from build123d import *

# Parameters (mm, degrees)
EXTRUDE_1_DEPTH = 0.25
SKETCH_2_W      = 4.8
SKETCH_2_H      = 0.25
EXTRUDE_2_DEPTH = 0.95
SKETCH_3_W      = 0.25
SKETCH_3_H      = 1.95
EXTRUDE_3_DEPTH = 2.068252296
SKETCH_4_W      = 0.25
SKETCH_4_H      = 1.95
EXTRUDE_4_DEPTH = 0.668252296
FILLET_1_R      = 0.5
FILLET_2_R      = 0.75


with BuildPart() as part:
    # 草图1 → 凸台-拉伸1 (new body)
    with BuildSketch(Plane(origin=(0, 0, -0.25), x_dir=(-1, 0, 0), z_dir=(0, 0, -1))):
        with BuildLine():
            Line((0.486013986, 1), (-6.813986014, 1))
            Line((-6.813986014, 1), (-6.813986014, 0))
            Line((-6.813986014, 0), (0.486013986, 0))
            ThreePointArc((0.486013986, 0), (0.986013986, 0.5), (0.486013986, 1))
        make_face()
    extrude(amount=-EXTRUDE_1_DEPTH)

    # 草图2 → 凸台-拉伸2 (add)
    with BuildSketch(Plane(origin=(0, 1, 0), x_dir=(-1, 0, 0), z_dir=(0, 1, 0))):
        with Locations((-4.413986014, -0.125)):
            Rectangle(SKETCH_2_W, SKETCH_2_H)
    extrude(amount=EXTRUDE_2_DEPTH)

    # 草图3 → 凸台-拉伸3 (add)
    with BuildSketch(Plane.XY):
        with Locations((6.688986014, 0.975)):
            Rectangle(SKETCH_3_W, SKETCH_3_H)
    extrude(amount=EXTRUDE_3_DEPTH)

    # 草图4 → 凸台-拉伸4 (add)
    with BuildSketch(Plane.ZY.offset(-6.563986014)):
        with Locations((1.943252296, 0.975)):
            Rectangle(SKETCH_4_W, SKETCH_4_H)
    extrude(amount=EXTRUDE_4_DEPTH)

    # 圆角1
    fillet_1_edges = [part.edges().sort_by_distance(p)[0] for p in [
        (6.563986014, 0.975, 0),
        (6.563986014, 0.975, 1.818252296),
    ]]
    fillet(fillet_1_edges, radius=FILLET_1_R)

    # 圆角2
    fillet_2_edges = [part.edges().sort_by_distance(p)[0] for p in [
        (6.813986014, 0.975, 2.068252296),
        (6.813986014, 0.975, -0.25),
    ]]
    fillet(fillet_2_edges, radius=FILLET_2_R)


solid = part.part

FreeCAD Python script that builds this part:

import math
import FreeCAD as App
import Part
import Sketcher


def edges_at(feature, points):
    """Names of the edges that pass closest to the given points."""
    edges = feature.Shape.Edges
    near = lambda p: min(range(len(edges)), key=lambda i: edges[i].distToShape(Part.Vertex(*p))[0])
    return sorted({f"Edge{near(p) + 1}" for p in points})

doc = App.newDocument("Part")
body = doc.addObject("PartDesign::Body", "Body")

# Sketch on XY plane
sketch1 = doc.addObject("Sketcher::SketchObject", "Sketch")
body.addObject(sketch1)
sketch1.AttachmentSupport = (doc.XY_Plane, [""])
sketch1.MapMode = "FlatFace"
sketch1.AttachmentOffset = App.Placement(App.Vector(0, 0, -0.25), App.Rotation())
sketch1.addGeometry(Part.LineSegment(App.Vector(-0.5, 1, 0), App.Vector(6.8, 1, 0)), False)
sketch1.addGeometry(Part.LineSegment(App.Vector(6.8, 1, 0), App.Vector(6.8, 0, 0)), False)
sketch1.addGeometry(Part.LineSegment(App.Vector(6.8, 0, 0), App.Vector(-0.5, 0, 0)), False)
sketch1.addGeometry(Part.ArcOfCircle(Part.Circle(App.Vector(-0.5, 0.5, 0), App.Vector(0, 0, 1), 0.5), math.radians(90), math.radians(270)), False)
sketch1.addConstraint(Sketcher.Constraint("Coincident", 0, 2, 1, 1))
sketch1.addConstraint(Sketcher.Constraint("Coincident", 1, 2, 2, 1))
sketch1.addConstraint(Sketcher.Constraint("Tangent", 2, 2, 3, 2))
sketch1.addConstraint(Sketcher.Constraint("Tangent", 3, 1, 0, 1))
sketch1.addConstraint(Sketcher.Constraint("Horizontal", 0))
sketch1.addConstraint(Sketcher.Constraint("Vertical", 1))
sketch1.addConstraint(Sketcher.Constraint("Horizontal", 2))
sketch1.addConstraint(Sketcher.Constraint("PointOnObject", 1, 2, -1))
sketch1.addConstraint(Sketcher.Constraint("Radius", 3, 0.5))
sketch1.addConstraint(Sketcher.Constraint("DistanceX", 0, 1, 0, 2, 7.3))
sketch1.addConstraint(Sketcher.Constraint("DistanceX", 3, 3, -1, 1, 0.486014))
pad1 = doc.addObject("PartDesign::Pad", "Pad")
body.addObject(pad1)
pad1.Profile = sketch1
pad1.Length = 0.25

# Sketch on XZ plane
sketch2 = doc.addObject("Sketcher::SketchObject", "Sketch001")
body.addObject(sketch2)
sketch2.AttachmentSupport = (doc.XZ_Plane, [""])
sketch2.MapMode = "FlatFace"
sketch2.AttachmentOffset = App.Placement(App.Vector(0, 0, -1), App.Rotation())
sketch2.addGeometry(Part.LineSegment(App.Vector(6.81, 0, 0), App.Vector(6.81, -0.25, 0)), False)
sketch2.addGeometry(Part.LineSegment(App.Vector(6.81, -0.25, 0), App.Vector(2.01, -0.25, 0)), False)
sketch2.addGeometry(Part.LineSegment(App.Vector(2.01, -0.25, 0), App.Vector(2.01, 0, 0)), False)
sketch2.addGeometry(Part.LineSegment(App.Vector(2.01, 0, 0), App.Vector(6.81, 0, 0)), False)
sketch2.addConstraint(Sketcher.Constraint("Coincident", 0, 2, 1, 1))
sketch2.addConstraint(Sketcher.Constraint("Coincident", 1, 2, 2, 1))
sketch2.addConstraint(Sketcher.Constraint("Coincident", 2, 2, 3, 1))
sketch2.addConstraint(Sketcher.Constraint("Coincident", 3, 2, 0, 1))
sketch2.addConstraint(Sketcher.Constraint("Vertical", 0))
sketch2.addConstraint(Sketcher.Constraint("Horizontal", 1))
sketch2.addConstraint(Sketcher.Constraint("Vertical", 2))
sketch2.addConstraint(Sketcher.Constraint("Horizontal", 3))
sketch2.addConstraint(Sketcher.Constraint("PointOnObject", 2, 2, -1))
sketch2.addConstraint(Sketcher.Constraint("DistanceX", 1, 2, 1, 1, 4.8))
sketch2.addConstraint(Sketcher.Constraint("DistanceY", 0, 2, 0, 1, 0.25))
sketch2.addConstraint(Sketcher.Constraint("DistanceX", -1, 1, 0, 2, 6.813986))
pad2 = doc.addObject("PartDesign::Pad", "Pad001")
body.addObject(pad2)
pad2.Profile = sketch2
pad2.Length = 0.95
pad2.Reversed = True

# Sketch on XY plane
sketch3 = doc.addObject("Sketcher::SketchObject", "Sketch002")
body.addObject(sketch3)
sketch3.AttachmentSupport = (doc.XY_Plane, [""])
sketch3.MapMode = "FlatFace"
sketch3.addGeometry(Part.LineSegment(App.Vector(6.56, 1.95, 0), App.Vector(6.56, 0, 0)), False)
sketch3.addGeometry(Part.LineSegment(App.Vector(6.56, 0, 0), App.Vector(6.81, 0, 0)), False)
sketch3.addGeometry(Part.LineSegment(App.Vector(6.81, 0, 0), App.Vector(6.81, 1.95, 0)), False)
sketch3.addGeometry(Part.LineSegment(App.Vector(6.81, 1.95, 0), App.Vector(6.56, 1.95, 0)), False)
sketch3.addConstraint(Sketcher.Constraint("Coincident", 0, 2, 1, 1))
sketch3.addConstraint(Sketcher.Constraint("Coincident", 1, 2, 2, 1))
sketch3.addConstraint(Sketcher.Constraint("Coincident", 2, 2, 3, 1))
sketch3.addConstraint(Sketcher.Constraint("Coincident", 3, 2, 0, 1))
sketch3.addConstraint(Sketcher.Constraint("Vertical", 0))
sketch3.addConstraint(Sketcher.Constraint("Horizontal", 1))
sketch3.addConstraint(Sketcher.Constraint("Vertical", 2))
sketch3.addConstraint(Sketcher.Constraint("Horizontal", 3))
sketch3.addConstraint(Sketcher.Constraint("PointOnObject", 0, 2, -1))
sketch3.addConstraint(Sketcher.Constraint("DistanceX", 1, 1, 1, 2, 0.25))
sketch3.addConstraint(Sketcher.Constraint("DistanceY", 0, 2, 0, 1, 1.95))
sketch3.addConstraint(Sketcher.Constraint("DistanceX", -1, 1, 0, 2, 6.563986))
pad3 = doc.addObject("PartDesign::Pad", "Pad002")
body.addObject(pad3)
pad3.Profile = sketch3
pad3.Length = 2.068252

# Sketch on YZ plane
sketch4 = doc.addObject("Sketcher::SketchObject", "Sketch003")
body.addObject(sketch4)
sketch4.AttachmentSupport = (doc.YZ_Plane, [""])
sketch4.MapMode = "FlatFace"
sketch4.AttachmentOffset = App.Placement(App.Vector(0, 0, 6.563986), App.Rotation())
sketch4.addGeometry(Part.LineSegment(App.Vector(1.95, 1.82, 0), App.Vector(0, 1.82, 0)), False)
sketch4.addGeometry(Part.LineSegment(App.Vector(0, 1.82, 0), App.Vector(0, 2.07, 0)), False)
sketch4.addGeometry(Part.LineSegment(App.Vector(0, 2.07, 0), App.Vector(1.95, 2.07, 0)), False)
sketch4.addGeometry(Part.LineSegment(App.Vector(1.95, 2.07, 0), App.Vector(1.95, 1.82, 0)), False)
sketch4.addConstraint(Sketcher.Constraint("Coincident", 0, 2, 1, 1))
sketch4.addConstraint(Sketcher.Constraint("Coincident", 1, 2, 2, 1))
sketch4.addConstraint(Sketcher.Constraint("Coincident", 2, 2, 3, 1))
sketch4.addConstraint(Sketcher.Constraint("Coincident", 3, 2, 0, 1))
sketch4.addConstraint(Sketcher.Constraint("Horizontal", 0))
sketch4.addConstraint(Sketcher.Constraint("Vertical", 1))
sketch4.addConstraint(Sketcher.Constraint("Horizontal", 2))
sketch4.addConstraint(Sketcher.Constraint("Vertical", 3))
sketch4.addConstraint(Sketcher.Constraint("PointOnObject", 0, 2, -2))
sketch4.addConstraint(Sketcher.Constraint("DistanceX", 0, 2, 0, 1, 1.95))
sketch4.addConstraint(Sketcher.Constraint("DistanceY", 1, 1, 1, 2, 0.25))
sketch4.addConstraint(Sketcher.Constraint("DistanceY", -1, 1, 0, 2, 1.818252))
pad4 = doc.addObject("PartDesign::Pad", "Pad003")
body.addObject(pad4)
pad4.Profile = sketch4
pad4.Length = 0.668252
pad4.Reversed = True
doc.recompute()

fillet = doc.addObject("PartDesign::Fillet", "Fillet")
body.addObject(fillet)
fillet.Base = (pad4, edges_at(pad4, [(6.564, 0.975, 0), (6.564, 0.975, 1.818)]))
fillet.Radius = 0.5
doc.recompute()

fillet2 = doc.addObject("PartDesign::Fillet", "Fillet001")
body.addObject(fillet2)
fillet2.Base = (fillet, edges_at(fillet, [(6.814, 0.975, 2.068), (6.814, 0.975, -0.25)]))
fillet2.Radius = 0.75

doc.recompute()
